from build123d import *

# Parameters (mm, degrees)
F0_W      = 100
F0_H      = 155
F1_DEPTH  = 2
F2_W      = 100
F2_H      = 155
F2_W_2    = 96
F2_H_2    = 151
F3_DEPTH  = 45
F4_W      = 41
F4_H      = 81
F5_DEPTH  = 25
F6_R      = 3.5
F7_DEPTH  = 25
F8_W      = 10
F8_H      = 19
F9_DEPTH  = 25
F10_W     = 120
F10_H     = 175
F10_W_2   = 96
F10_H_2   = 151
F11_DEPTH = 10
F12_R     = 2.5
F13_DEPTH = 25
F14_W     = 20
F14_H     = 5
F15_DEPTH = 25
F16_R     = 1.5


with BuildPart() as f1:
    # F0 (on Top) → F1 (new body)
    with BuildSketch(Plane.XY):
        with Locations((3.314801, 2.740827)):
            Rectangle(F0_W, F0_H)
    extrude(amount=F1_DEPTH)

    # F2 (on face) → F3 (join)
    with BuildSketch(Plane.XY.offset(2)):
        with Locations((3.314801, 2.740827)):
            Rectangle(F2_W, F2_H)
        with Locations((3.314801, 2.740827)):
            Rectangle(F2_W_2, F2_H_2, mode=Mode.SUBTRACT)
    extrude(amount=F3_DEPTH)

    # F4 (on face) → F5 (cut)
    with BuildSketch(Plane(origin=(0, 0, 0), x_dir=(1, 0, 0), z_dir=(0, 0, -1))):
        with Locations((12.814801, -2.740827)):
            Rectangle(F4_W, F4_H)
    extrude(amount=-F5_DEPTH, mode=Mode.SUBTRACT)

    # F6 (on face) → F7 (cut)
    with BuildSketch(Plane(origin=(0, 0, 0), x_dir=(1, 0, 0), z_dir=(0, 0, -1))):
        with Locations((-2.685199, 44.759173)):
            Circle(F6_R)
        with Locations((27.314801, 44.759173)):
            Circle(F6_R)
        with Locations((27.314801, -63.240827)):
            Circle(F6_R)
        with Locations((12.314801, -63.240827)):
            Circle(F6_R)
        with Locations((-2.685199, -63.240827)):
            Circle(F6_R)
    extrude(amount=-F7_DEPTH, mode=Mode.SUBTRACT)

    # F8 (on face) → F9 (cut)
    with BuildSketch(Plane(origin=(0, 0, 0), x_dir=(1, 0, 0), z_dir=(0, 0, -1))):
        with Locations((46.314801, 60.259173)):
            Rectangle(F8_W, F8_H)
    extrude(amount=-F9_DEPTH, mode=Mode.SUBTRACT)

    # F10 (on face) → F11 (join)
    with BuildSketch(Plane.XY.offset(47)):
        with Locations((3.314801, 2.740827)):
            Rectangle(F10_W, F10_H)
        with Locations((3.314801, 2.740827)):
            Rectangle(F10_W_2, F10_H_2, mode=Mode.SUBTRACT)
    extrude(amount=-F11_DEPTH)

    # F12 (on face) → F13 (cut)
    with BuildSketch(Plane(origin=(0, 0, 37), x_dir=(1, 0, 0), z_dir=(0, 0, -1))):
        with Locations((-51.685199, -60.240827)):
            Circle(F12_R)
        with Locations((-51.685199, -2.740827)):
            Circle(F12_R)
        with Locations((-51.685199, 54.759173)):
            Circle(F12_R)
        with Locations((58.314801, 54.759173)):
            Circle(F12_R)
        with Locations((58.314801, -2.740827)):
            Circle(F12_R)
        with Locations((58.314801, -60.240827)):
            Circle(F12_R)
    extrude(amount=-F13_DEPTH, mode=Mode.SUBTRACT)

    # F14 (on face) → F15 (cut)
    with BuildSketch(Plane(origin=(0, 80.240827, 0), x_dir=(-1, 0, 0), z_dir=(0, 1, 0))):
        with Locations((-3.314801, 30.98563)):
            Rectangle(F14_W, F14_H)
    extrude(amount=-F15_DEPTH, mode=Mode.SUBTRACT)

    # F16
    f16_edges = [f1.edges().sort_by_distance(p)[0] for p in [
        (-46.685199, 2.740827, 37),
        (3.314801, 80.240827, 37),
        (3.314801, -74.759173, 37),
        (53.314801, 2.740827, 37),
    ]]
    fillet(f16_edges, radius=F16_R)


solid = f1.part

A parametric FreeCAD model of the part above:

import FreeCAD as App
import Part
import Sketcher
from FreeCAD import Vector
Q = App.Units.Quantity


def edges_at(feature, points):
    """Names of the edges that pass closest to the given points."""
    edges = feature.Shape.Edges
    near = lambda p: min(range(len(edges)), key=lambda i: edges[i].distToShape(Part.Vertex(*p))[0])
    return sorted({f"Edge{near(p) + 1}" for p in points})


def add_polygon(sketch, points):
    """Adds a closed chain of lines whose ends are joined by coincident constraints."""
    first, n = sketch.GeometryCount, len(points)
    for a, b in zip(points, points[1:] + points[:1]):
        sketch.addGeometry(Part.LineSegment(App.Vector(*a, 0), App.Vector(*b, 0)), False)
    for i in range(n):
        sketch.addConstraint(Sketcher.Constraint("Coincident", first + i, 2, first + (i + 1) % n, 1))

doc = App.newDocument("Part")
body = doc.addObject("PartDesign::Body", "Body")

sketch1 = doc.addObject("Sketcher::SketchObject", "Sketch")
body.addObject(sketch1)
sketch1.AttachmentSupport = (doc.XY_Plane, [""])
sketch1.MapMode = "FlatFace"
add_polygon(sketch1, [(-47, 80), (-47, -75), (53, -75), (53, 80)])
sketch1.addConstraint(Sketcher.Constraint("Vertical", 0))
sketch1.addConstraint(Sketcher.Constraint("Horizontal", 1))
sketch1.addConstraint(Sketcher.Constraint("Vertical", 2))
sketch1.addConstraint(Sketcher.Constraint("Horizontal", 3))
sketch1.addConstraint(Sketcher.Constraint("DistanceX", 1, 1, 1, 2, Q("100 mm")))
sketch1.addConstraint(Sketcher.Constraint("DistanceY", 0, 2, 0, 1, Q("155 mm")))
sketch1.addConstraint(Sketcher.Constraint("DistanceX", 0, 2, -1, 1, Q("46.685199 mm")))
sketch1.addConstraint(Sketcher.Constraint("DistanceY", 0, 2, -1, 1, Q("74.759173 mm")))
pad1 = doc.addObject("PartDesign::Pad", "Pad")
body.addObject(pad1)
pad1.Profile = sketch1
pad1.Length = 2

sketch2 = doc.addObject("Sketcher::SketchObject", "Sketch001")
body.addObject(sketch2)
sketch2.AttachmentSupport = (doc.XY_Plane, [""])
sketch2.MapMode = "FlatFace"
sketch2.AttachmentOffset = App.Placement(Vector(0, 0, 2), App.Rotation())
add_polygon(sketch2, [(-47, 80), (-47, -75), (53, -75), (53, 80)])
add_polygon(sketch2, [(51, -73), (-45, -73), (-45, 78), (51, 78)])
sketch2.addConstraint(Sketcher.Constraint("Vertical", 0))
sketch2.addConstraint(Sketcher.Constraint("Horizontal", 1))
sketch2.addConstraint(Sketcher.Constraint("Vertical", 2))
sketch2.addConstraint(Sketcher.Constraint("Horizontal", 3))
sketch2.addConstraint(Sketcher.Constraint("Horizontal", 4))
sketch2.addConstraint(Sketcher.Constraint("Vertical", 5))
sketch2.addConstraint(Sketcher.Constraint("Horizontal", 6))
sketch2.addConstraint(Sketcher.Constraint("Vertical", 7))
sketch2.addConstraint(Sketcher.Constraint("DistanceX", 1, 1, 1, 2, Q("100 mm")))
sketch2.addConstraint(Sketcher.Constraint("DistanceX", 4, 2, 4, 1, Q("96 mm")))
sketch2.addConstraint(Sketcher.Constraint("DistanceY", 0, 2, 0, 1, Q("155 mm")))
sketch2.addConstraint(Sketcher.Constraint("DistanceY", 5, 1, 5, 2, Q("151 mm")))
sketch2.addConstraint(Sketcher.Constraint("DistanceX", 0, 2, 4, 2, Q("2 mm")))
sketch2.addConstraint(Sketcher.Constraint("DistanceY", 0, 2, 4, 2, Q("2 mm")))
sketch2.addConstraint(Sketcher.Constraint("DistanceX", 0, 2, -1, 1, Q("46.685199 mm")))
sketch2.addConstraint(Sketcher.Constraint("DistanceY", 0, 2, -1, 1, Q("74.759173 mm")))
pad2 = doc.addObject("PartDesign::Pad", "Pad001")
body.addObject(pad2)
pad2.Profile = sketch2
pad2.Length = 45

sketch3 = doc.addObject("Sketcher::SketchObject", "Sketch002")
body.addObject(sketch3)
sketch3.AttachmentSupport = (doc.XY_Plane, [""])
sketch3.MapMode = "FlatFace"
add_polygon(sketch3, [(-8, -38), (-8, 43), (33, 43), (33, -38)])
sketch3.addConstraint(Sketcher.Constraint("Vertical", 0))
sketch3.addConstraint(Sketcher.Constraint("Horizontal", 1))
sketch3.addConstraint(Sketcher.Constraint("Vertical", 2))
sketch3.addConstraint(Sketcher.Constraint("Horizontal", 3))
sketch3.addConstraint(Sketcher.Constraint("DistanceX", 1, 1, 1, 2, Q("41 mm")))
sketch3.addConstraint(Sketcher.Constraint("DistanceY", 0, 1, 0, 2, Q("81 mm")))
sketch3.addConstraint(Sketcher.Constraint("DistanceX", 0, 2, -1, 1, Q("7.685199 mm")))
sketch3.addConstraint(Sketcher.Constraint("DistanceY", -1, 1, 0, 2, Q("43.240827 mm")))
pocket1 = doc.addObject("PartDesign::Pocket", "Pocket")
body.addObject(pocket1)
pocket1.Profile = sketch3
pocket1.Length = 25
pocket1.Reversed = True

sketch4 = doc.addObject("Sketcher::SketchObject", "Sketch003")
body.addObject(sketch4)
sketch4.AttachmentSupport = (doc.XY_Plane, [""])
sketch4.MapMode = "FlatFace"
sketch4.addGeometry(Part.Circle(Vector(-2.7, -44.8, 0), Vector(0, 0, 1), 3.5), False)
sketch4.addGeometry(Part.Circle(Vector(27.3, -44.8, 0), Vector(0, 0, 1), 3.5), False)
sketch4.addGeometry(Part.Circle(Vector(27.3, 63.2, 0), Vector(0, 0, 1), 3.5), False)
sketch4.addGeometry(Part.Circle(Vector(12.3, 63.2, 0), Vector(0, 0, 1), 3.5), False)
sketch4.addGeometry(Part.Circle(Vector(-2.7, 63.2, 0), Vector(0, 0, 1), 3.5), False)
sketch4.addConstraint(Sketcher.Constraint("Equal", 0, 1))
sketch4.addConstraint(Sketcher.Constraint("Equal", 1, 2))
sketch4.addConstraint(Sketcher.Constraint("Equal", 2, 3))
sketch4.addConstraint(Sketcher.Constraint("Equal", 3, 4))
sketch4.addConstraint(Sketcher.Constraint("Horizontal", 0, 3, 1, 3))
sketch4.addConstraint(Sketcher.Constraint("Horizontal", 2, 3, 3, 3))
sketch4.addConstraint(Sketcher.Constraint("Horizontal", 3, 3, 4, 3))
sketch4.addConstraint(Sketcher.Constraint("Vertical", 1, 3, 2, 3))
sketch4.addConstraint(Sketcher.Constraint("Vertical", 0, 3, 4, 3))
sketch4.addConstraint(Sketcher.Constraint("Diameter", 0, Q("7 mm")))
sketch4.addConstraint(Sketcher.Constraint("DistanceX", 0, 3, 1, 3, Q("30 mm")))
sketch4.addConstraint(Sketcher.Constraint("DistanceY", 1, 3, 2, 3, Q("108 mm")))
sketch4.addConstraint(Sketcher.Constraint("DistanceX", 3, 3, 2, 3, Q("15 mm")))
sketch4.addConstraint(Sketcher.Constraint("DistanceX", 0, 3, -1, 1, Q("2.685199 mm")))
sketch4.addConstraint(Sketcher.Constraint("DistanceY", 0, 3, -1, 1, Q("44.759173 mm")))
pocket2 = doc.addObject("PartDesign::Pocket", "Pocket001")
body.addObject(pocket2)
pocket2.Profile = sketch4
pocket2.Length = 25
pocket2.Reversed = True

sketch5 = doc.addObject("Sketcher::SketchObject", "Sketch004")
body.addObject(sketch5)
sketch5.AttachmentSupport = (doc.XY_Plane, [""])
sketch5.MapMode = "FlatFace"
add_polygon(sketch5, [(41, -70), (41, -51), (51, -51), (51, -70)])
sketch5.addConstraint(Sketcher.Constraint("Vertical", 0))
sketch5.addConstraint(Sketcher.Constraint("Horizontal", 1))
sketch5.addConstraint(Sketcher.Constraint("Vertical", 2))
sketch5.addConstraint(Sketcher.Constraint("Horizontal", 3))
sketch5.addConstraint(Sketcher.Constraint("DistanceX", 1, 1, 1, 2, Q("10 mm")))
sketch5.addConstraint(Sketcher.Constraint("DistanceY", 0, 1, 0, 2, Q("19 mm")))
sketch5.addConstraint(Sketcher.Constraint("DistanceX", -1, 1, 0, 2, Q("41.314801 mm")))
sketch5.addConstraint(Sketcher.Constraint("DistanceY", 0, 2, -1, 1, Q("50.759173 mm")))
pocket3 = doc.addObject("PartDesign::Pocket", "Pocket002")
body.addObject(pocket3)
pocket3.Profile = sketch5
pocket3.Length = 25
pocket3.Reversed = True

sketch6 = doc.addObject("Sketcher::SketchObject", "Sketch005")
body.addObject(sketch6)
sketch6.AttachmentSupport = (doc.XY_Plane, [""])
sketch6.MapMode = "FlatFace"
sketch6.AttachmentOffset = App.Placement(Vector(0, 0, 47), App.Rotation())
add_polygon(sketch6, [(-57, 90), (-57, -85), (63, -85), (63, 90)])
add_polygon(sketch6, [(51, -73), (-45, -73), (-45, 78), (51, 78)])
sketch6.addConstraint(Sketcher.Constraint("Vertical", 0))
sketch6.addConstraint(Sketcher.Constraint("Horizontal", 1))
sketch6.addConstraint(Sketcher.Constraint("Vertical", 2))
sketch6.addConstraint(Sketcher.Constraint("Horizontal", 3))
sketch6.addConstraint(Sketcher.Constraint("Horizontal", 4))
sketch6.addConstraint(Sketcher.Constraint("Vertical", 5))
sketch6.addConstraint(Sketcher.Constraint("Horizontal", 6))
sketch6.addConstraint(Sketcher.Constraint("Vertical", 7))
sketch6.addConstraint(Sketcher.Constraint("DistanceX", 1, 1, 1, 2, Q("120 mm")))
sketch6.addConstraint(Sketcher.Constraint("DistanceX", 4, 2, 4, 1, Q("96 mm")))
sketch6.addConstraint(Sketcher.Constraint("DistanceY", 0, 2, 0, 1, Q("175 mm")))
sketch6.addConstraint(Sketcher.Constraint("DistanceY", 5, 1, 5, 2, Q("151 mm")))
sketch6.addConstraint(Sketcher.Constraint("DistanceX", 0, 2, 4, 2, Q("12 mm")))
sketch6.addConstraint(Sketcher.Constraint("DistanceY", 0, 2, 4, 2, Q("12 mm")))
sketch6.addConstraint(Sketcher.Constraint("DistanceX", 0, 2, -1, 1, Q("56.685199 mm")))
sketch6.addConstraint(Sketcher.Constraint("DistanceY", 0, 2, -1, 1, Q("84.759173 mm")))
pad3 = doc.addObject("PartDesign::Pad", "Pad002")
body.addObject(pad3)
pad3.Profile = sketch6
pad3.Length = 10
pad3.Reversed = True

sketch7 = doc.addObject("Sketcher::SketchObject", "Sketch006")
body.addObject(sketch7)
sketch7.AttachmentSupport = (doc.XY_Plane, [""])
sketch7.MapMode = "FlatFace"
sketch7.AttachmentOffset = App.Placement(Vector(0, 0, 37), App.Rotation())
sketch7.addGeometry(Part.Circle(Vector(-51.7, 60.2, 0), Vector(0, 0, 1), 2.5), False)
sketch7.addGeometry(Part.Circle(Vector(-51.7, 2.7, 0), Vector(0, 0, 1), 2.5), False)
sketch7.addGeometry(Part.Circle(Vector(-51.7, -54.8, 0), Vector(0, 0, 1), 2.5), False)
sketch7.addGeometry(Part.Circle(Vector(58.3, -54.8, 0), Vector(0, 0, 1), 2.5), False)
sketch7.addGeometry(Part.Circle(Vector(58.3, 2.7, 0), Vector(0, 0, 1), 2.5), False)
sketch7.addGeometry(Part.Circle(Vector(58.3, 60.2, 0), Vector(0, 0, 1), 2.5), False)
sketch7.addConstraint(Sketcher.Constraint("Equal", 0, 1))
sketch7.addConstraint(Sketcher.Constraint("Equal", 1, 2))
sketch7.addConstraint(Sketcher.Constraint("Equal", 2, 3))
sketch7.addConstraint(Sketcher.Constraint("Equal", 3, 4))
sketch7.addConstraint(Sketcher.Constraint("Equal", 4, 5))
sketch7.addConstraint(Sketcher.Constraint("Horizontal", 2, 3, 3, 3))
sketch7.addConstraint(Sketcher.Constraint("Horizontal", 1, 3, 4, 3))
sketch7.addConstraint(Sketcher.Constraint("Horizontal", 0, 3, 5, 3))
sketch7.addConstraint(Sketcher.Constraint("Vertical", 0, 3, 1, 3))
sketch7.addConstraint(Sketcher.Constraint("Vertical", 1, 3, 2, 3))
sketch7.addConstraint(Sketcher.Constraint("Vertical", 3, 3, 4, 3))
sketch7.addConstraint(Sketcher.Constraint("Vertical", 4, 3, 5, 3))
sketch7.addConstraint(Sketcher.Constraint("Diameter", 0, Q("5 mm")))
sketch7.addConstraint(Sketcher.Constraint("DistanceY", 2, 3, 0, 3, Q("115 mm")))
sketch7.addConstraint(Sketcher.Constraint("DistanceX", 2, 3, 3, 3, Q("110 mm")))
sketch7.addConstraint(Sketcher.Constraint("DistanceY", 1, 3, 0, 3, Q("57.5 mm")))
sketch7.addConstraint(Sketcher.Constraint("DistanceX", 0, 3, -1, 1, Q("51.685199 mm")))
sketch7.addConstraint(Sketcher.Constraint("DistanceY", -1, 1, 0, 3, Q("60.240827 mm")))
pocket4 = doc.addObject("PartDesign::Pocket", "Pocket003")
body.addObject(pocket4)
pocket4.Profile = sketch7
pocket4.Length = 25
pocket4.Reversed = True

sketch8 = doc.addObject("Sketcher::SketchObject", "Sketch007")
body.addObject(sketch8)
sketch8.AttachmentSupport = (doc.XZ_Plane, [""])
sketch8.MapMode = "FlatFace"
sketch8.AttachmentOffset = App.Placement(Vector(0, 0, -80.240827), App.Rotation())
add_polygon(sketch8, [(13, 33), (13, 28), (-7, 28), (-7, 33)])
sketch8.addConstraint(Sketcher.Constraint("Vertical", 0))
sketch8.addConstraint(Sketcher.Constraint("Horizontal", 1))
sketch8.addConstraint(Sketcher.Constraint("Vertical", 2))
sketch8.addConstraint(Sketcher.Constraint("Horizontal", 3))
sketch8.addConstraint(Sketcher.Constraint("DistanceX", 1, 2, 1, 1, Q("20 mm")))
sketch8.addConstraint(Sketcher.Constraint("DistanceY", 0, 2, 0, 1, Q("5 mm")))
sketch8.addConstraint(Sketcher.Constraint("DistanceX", -1, 1, 0, 2, Q("13.314801 mm")))
sketch8.addConstraint(Sketcher.Constraint("DistanceY", -1, 1, 0, 2, Q("28.48563 mm")))
pocket5 = doc.addObject("PartDesign::Pocket", "Pocket004")
body.addObject(pocket5)
pocket5.Profile = sketch8
pocket5.Length = 25
pocket5.Reversed = True
doc.recompute()

fillet = doc.addObject("PartDesign::Fillet", "Fillet")
body.addObject(fillet)
fillet.Base = (pocket5, edges_at(pocket5, [
    (-46.685, 2.741, 37),
    (3.315, 80.241, 37),
    (3.315, -74.759, 37),
    (53.315, 2.741, 37),
]))
fillet.Radius = 1.5

doc.recompute()
